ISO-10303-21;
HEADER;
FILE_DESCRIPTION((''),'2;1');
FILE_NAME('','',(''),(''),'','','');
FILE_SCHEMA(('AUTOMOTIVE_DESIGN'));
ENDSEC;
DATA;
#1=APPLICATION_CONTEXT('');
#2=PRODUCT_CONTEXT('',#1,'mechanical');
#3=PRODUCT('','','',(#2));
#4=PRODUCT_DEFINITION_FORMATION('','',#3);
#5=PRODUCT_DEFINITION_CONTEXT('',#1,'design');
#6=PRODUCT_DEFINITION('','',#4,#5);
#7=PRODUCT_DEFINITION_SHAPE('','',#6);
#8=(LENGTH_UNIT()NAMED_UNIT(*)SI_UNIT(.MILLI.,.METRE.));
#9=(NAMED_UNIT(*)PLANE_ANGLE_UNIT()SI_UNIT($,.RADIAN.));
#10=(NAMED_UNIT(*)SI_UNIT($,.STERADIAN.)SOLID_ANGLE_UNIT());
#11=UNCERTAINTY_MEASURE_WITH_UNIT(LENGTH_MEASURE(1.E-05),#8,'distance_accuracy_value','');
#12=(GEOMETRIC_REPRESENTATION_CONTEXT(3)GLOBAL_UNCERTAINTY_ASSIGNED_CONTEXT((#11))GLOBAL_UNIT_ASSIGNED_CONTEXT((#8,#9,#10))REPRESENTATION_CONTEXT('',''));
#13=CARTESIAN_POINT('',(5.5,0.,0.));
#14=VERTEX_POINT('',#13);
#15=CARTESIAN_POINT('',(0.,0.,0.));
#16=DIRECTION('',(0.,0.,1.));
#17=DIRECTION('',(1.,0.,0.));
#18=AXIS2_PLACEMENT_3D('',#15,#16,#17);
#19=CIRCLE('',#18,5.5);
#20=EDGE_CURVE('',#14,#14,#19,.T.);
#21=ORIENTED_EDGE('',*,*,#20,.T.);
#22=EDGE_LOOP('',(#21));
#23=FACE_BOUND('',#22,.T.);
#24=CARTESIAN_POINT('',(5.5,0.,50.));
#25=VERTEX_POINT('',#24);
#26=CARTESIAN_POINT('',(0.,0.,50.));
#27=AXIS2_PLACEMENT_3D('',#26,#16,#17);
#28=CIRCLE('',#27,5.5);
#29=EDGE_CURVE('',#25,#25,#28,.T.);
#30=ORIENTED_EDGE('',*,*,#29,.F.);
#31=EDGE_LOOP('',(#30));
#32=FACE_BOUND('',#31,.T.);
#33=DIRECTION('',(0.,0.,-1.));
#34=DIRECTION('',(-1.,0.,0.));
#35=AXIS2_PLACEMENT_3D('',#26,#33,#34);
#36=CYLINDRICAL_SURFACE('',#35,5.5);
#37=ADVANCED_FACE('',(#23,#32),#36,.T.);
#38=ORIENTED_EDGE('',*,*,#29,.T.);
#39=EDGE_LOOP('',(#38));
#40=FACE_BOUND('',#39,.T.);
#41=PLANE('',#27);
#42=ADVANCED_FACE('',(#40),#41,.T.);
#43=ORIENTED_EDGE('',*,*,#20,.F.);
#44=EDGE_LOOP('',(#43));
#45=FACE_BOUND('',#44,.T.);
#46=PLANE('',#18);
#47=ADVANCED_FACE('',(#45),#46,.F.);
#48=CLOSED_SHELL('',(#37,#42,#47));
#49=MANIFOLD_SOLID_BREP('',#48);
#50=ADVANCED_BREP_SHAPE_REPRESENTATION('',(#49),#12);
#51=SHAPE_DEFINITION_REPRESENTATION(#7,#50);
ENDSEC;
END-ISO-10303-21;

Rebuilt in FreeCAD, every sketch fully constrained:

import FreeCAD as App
import Part
import Sketcher
from FreeCAD import Vector
Q = App.Units.Quantity

doc = App.newDocument("Part")
body = doc.addObject("PartDesign::Body", "Body")

# Sketch on XY plane
sketch1 = body.newObject("Sketcher::SketchObject", "Sketch")
sketch1.AttachmentSupport = (doc.getObject("XY_Plane"), [""])
sketch1.MapMode = "FlatFace"
sketch1.addGeometry(Part.Circle(Vector(0, 0, 0), Vector(0, 0, 1), 5.5), False)
sketch1.addConstraint(Sketcher.Constraint("Coincident", 0, 3, -1, 1))
sketch1.addConstraint(Sketcher.Constraint("Diameter", 0, Q("11 mm")))
pad1 = body.newObject("PartDesign::Pad", "Pad")
pad1.Profile = sketch1
pad1.Length = 50

doc.recompute()
